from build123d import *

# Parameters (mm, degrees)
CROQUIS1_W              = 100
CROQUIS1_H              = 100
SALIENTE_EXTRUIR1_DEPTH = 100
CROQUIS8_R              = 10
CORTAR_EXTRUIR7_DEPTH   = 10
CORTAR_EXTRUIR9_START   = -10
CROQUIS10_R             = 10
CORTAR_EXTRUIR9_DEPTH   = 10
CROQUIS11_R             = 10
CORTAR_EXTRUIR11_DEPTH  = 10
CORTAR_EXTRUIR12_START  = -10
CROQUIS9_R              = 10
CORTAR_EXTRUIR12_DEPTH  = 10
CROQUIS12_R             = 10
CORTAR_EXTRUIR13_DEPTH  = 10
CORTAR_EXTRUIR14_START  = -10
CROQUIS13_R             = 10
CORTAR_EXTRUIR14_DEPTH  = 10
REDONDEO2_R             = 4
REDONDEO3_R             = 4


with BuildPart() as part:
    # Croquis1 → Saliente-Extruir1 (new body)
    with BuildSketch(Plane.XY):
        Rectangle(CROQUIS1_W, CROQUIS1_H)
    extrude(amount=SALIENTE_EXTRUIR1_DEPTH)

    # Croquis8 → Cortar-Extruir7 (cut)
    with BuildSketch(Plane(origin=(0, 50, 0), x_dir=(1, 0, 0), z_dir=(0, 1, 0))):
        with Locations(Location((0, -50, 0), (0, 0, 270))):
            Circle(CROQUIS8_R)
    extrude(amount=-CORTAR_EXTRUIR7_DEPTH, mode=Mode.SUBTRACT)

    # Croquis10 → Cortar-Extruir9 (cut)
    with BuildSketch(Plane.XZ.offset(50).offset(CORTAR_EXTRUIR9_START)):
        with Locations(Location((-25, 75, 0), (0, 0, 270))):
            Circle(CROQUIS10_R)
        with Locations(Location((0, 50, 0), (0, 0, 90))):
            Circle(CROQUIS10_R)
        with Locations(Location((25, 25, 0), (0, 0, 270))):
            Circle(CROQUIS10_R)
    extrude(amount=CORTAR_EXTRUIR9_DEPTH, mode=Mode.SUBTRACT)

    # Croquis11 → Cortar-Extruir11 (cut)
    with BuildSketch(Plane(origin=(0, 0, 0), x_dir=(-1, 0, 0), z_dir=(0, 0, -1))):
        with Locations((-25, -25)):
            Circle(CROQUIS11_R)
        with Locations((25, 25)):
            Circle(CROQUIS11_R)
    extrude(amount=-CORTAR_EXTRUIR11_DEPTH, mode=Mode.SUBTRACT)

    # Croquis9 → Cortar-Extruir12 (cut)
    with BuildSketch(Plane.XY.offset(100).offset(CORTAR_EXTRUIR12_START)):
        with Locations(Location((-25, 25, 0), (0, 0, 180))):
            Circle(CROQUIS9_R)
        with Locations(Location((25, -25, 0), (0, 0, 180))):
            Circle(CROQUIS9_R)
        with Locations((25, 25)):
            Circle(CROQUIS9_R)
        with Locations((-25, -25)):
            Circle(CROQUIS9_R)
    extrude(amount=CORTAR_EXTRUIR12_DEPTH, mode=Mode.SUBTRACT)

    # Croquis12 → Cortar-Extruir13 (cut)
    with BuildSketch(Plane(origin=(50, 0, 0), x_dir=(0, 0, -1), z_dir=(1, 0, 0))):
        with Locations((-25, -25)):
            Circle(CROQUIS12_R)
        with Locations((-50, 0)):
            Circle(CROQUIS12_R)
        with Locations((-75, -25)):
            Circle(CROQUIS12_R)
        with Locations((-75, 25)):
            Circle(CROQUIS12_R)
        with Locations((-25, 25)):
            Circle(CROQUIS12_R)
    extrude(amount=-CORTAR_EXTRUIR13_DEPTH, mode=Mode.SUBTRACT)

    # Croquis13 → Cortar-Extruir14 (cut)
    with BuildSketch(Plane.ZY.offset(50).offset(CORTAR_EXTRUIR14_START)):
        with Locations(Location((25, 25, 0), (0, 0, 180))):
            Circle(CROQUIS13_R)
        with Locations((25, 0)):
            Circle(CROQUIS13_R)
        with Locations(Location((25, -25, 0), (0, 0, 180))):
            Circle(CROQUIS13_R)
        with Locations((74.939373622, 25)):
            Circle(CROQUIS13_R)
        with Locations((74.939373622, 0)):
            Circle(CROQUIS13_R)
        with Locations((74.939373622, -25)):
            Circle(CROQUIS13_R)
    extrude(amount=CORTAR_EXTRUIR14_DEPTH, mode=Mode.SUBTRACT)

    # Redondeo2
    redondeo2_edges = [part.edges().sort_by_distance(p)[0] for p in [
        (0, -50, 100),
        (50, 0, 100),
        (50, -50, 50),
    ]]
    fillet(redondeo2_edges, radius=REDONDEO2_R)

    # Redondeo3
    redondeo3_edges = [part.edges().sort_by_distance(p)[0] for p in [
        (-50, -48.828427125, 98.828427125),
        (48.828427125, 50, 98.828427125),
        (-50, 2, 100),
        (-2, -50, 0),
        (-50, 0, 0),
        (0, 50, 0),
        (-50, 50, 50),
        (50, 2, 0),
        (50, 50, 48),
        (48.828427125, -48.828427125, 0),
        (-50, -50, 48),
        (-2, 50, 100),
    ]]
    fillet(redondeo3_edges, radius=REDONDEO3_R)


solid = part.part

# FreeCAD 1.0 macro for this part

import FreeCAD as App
import Part
import Sketcher

V = App.Vector


def edges_at(feature, points):
    """Names of the edges that pass closest to the given points."""
    edges = feature.Shape.Edges
    near = lambda p: min(range(len(edges)), key=lambda i: edges[i].distToShape(Part.Vertex(*p))[0])
    return sorted({f"Edge{near(p) + 1}" for p in points})


def add_polygon(sketch, points):
    """Adds a closed chain of lines whose ends are joined by coincident constraints."""
    first, n = sketch.GeometryCount, len(points)
    for a, b in zip(points, points[1:] + points[:1]):
        sketch.addGeometry(Part.LineSegment(App.Vector(*a, 0), App.Vector(*b, 0)), False)
    for i in range(n):
        sketch.addConstraint(Sketcher.Constraint("Coincident", first + i, 2, first + (i + 1) % n, 1))

doc = App.newDocument("Part")
body = doc.addObject("PartDesign::Body", "Body")

sketch1 = body.newObject("Sketcher::SketchObject", "Sketch")
sketch1.AttachmentSupport = (doc.getObject("XY_Plane"), [""])
sketch1.MapMode = "FlatFace"
add_polygon(sketch1, [(-50, 50), (-50, -50), (50, -50), (50, 50)])
sketch1.addConstraint([
    Sketcher.Constraint("Vertical", 0),
    Sketcher.Constraint("Horizontal", 1),
    Sketcher.Constraint("Vertical", 2),
    Sketcher.Constraint("Horizontal", 3),
    Sketcher.Constraint("Symmetric", 0, 2, 2, 2, -1, 1),
    Sketcher.Constraint("Equal", 3, 0),
    Sketcher.Constraint("DistanceX", 1, 1, 1, 2, 100.0),
])
pad1 = body.newObject("PartDesign::Pad", "Pad")
pad1.Profile = sketch1
pad1.Length = 100

sketch2 = body.newObject("Sketcher::SketchObject", "Sketch001")
sketch2.AttachmentSupport = (doc.getObject("XZ_Plane"), [""])
sketch2.MapMode = "FlatFace"
sketch2.AttachmentOffset = App.Placement(V(0, 0, -50), App.Rotation())
sketch2.addGeometry(Part.Circle(V(0, 50, 0), V(0, 0, 1), 10), False)
sketch2.addConstraint([
    Sketcher.Constraint("PointOnObject", 0, 3, -2),
    Sketcher.Constraint("Diameter", 0, 20.0),
    Sketcher.Constraint("DistanceY", -1, 1, 0, 3, 50.0),
])
pocket1 = body.newObject("PartDesign::Pocket", "Pocket")
pocket1.Profile = sketch2
pocket1.Length = 10
pocket1.Reversed = True

sketch3 = body.newObject("Sketcher::SketchObject", "Sketch002")
sketch3.AttachmentSupport = (doc.getObject("XZ_Plane"), [""])
sketch3.MapMode = "FlatFace"
sketch3.AttachmentOffset = App.Placement(V(0, 0, 40), App.Rotation())
sketch3.addGeometry([
    Part.Circle(V(-25, 75, 0), V(0, 0, 1), 10),
    Part.Circle(V(0, 50, 0), V(0, 0, 1), 10),
    Part.Circle(V(25, 25, 0), V(0, 0, 1), 10),
], False)
sketch3.addConstraint([
    Sketcher.Constraint("Equal", 0, 1),
    Sketcher.Constraint("Equal", 1, 2),
    Sketcher.Constraint("PointOnObject", 1, 3, -2),
    Sketcher.Constraint("Diameter", 0, 20.0),
    Sketcher.Constraint("DistanceX", 0, 3, -1, 1, 25.0),
    Sketcher.Constraint("DistanceY", -1, 1, 0, 3, 75.0),
    Sketcher.Constraint("DistanceY", -1, 1, 1, 3, 50.0),
    Sketcher.Constraint("DistanceX", -1, 1, 2, 3, 25.0),
    Sketcher.Constraint("DistanceY", -1, 1, 2, 3, 25.0),
])
pocket2 = body.newObject("PartDesign::Pocket", "Pocket001")
pocket2.Profile = sketch3
pocket2.Length = 10
pocket2.Reversed = True

sketch4 = body.newObject("Sketcher::SketchObject", "Sketch003")
sketch4.AttachmentSupport = (doc.getObject("XY_Plane"), [""])
sketch4.MapMode = "FlatFace"
sketch4.addGeometry([
    Part.Circle(V(25, -25, 0), V(0, 0, 1), 10),
    Part.Circle(V(-25, 25, 0), V(0, 0, 1), 10),
], False)
sketch4.addConstraint([
    Sketcher.Constraint("Equal", 0, 1),
    Sketcher.Constraint("Symmetric", 0, 3, 1, 3, -1, 1),
    Sketcher.Constraint("Diameter", 0, 20.0),
    Sketcher.Constraint("DistanceX", -1, 1, 0, 3, 25.0),
    Sketcher.Constraint("DistanceY", 0, 3, -1, 1, 25.0),
])
pocket3 = body.newObject("PartDesign::Pocket", "Pocket002")
pocket3.Profile = sketch4
pocket3.Length = 10
pocket3.Reversed = True

sketch5 = body.newObject("Sketcher::SketchObject", "Sketch004")
sketch5.AttachmentSupport = (doc.getObject("XY_Plane"), [""])
sketch5.MapMode = "FlatFace"
sketch5.AttachmentOffset = App.Placement(V(0, 0, 90), App.Rotation())
sketch5.addGeometry([
    Part.Circle(V(-25, 25, 0), V(0, 0, 1), 10),
    Part.Circle(V(25, -25, 0), V(0, 0, 1), 10),
    Part.Circle(V(25, 25, 0), V(0, 0, 1), 10),
    Part.Circle(V(-25, -25, 0), V(0, 0, 1), 10),
], False)
sketch5.addConstraint([
    Sketcher.Constraint("Equal", 0, 1),
    Sketcher.Constraint("Equal", 1, 2),
    Sketcher.Constraint("Equal", 2, 3),
    Sketcher.Constraint("Symmetric", 0, 3, 1, 3, -1, 1),
    Sketcher.Constraint("Symmetric", 2, 3, 3, 3, -1, 1),
    Sketcher.Constraint("Symmetric", 0, 3, 2, 3, -2),
    Sketcher.Constraint("Diameter", 0, 20.0),
    Sketcher.Constraint("DistanceX", 0, 3, -1, 1, 25.0),
    Sketcher.Constraint("DistanceY", -1, 1, 0, 3, 25.0),
])
pocket4 = body.newObject("PartDesign::Pocket", "Pocket003")
pocket4.Profile = sketch5
pocket4.Length = 10
pocket4.Reversed = True

sketch6 = body.newObject("Sketcher::SketchObject", "Sketch005")
sketch6.AttachmentSupport = (doc.getObject("YZ_Plane"), [""])
sketch6.MapMode = "FlatFace"
sketch6.AttachmentOffset = App.Placement(V(0, 0, 50), App.Rotation())
sketch6.addGeometry([
    Part.Circle(V(-25, 25, 0), V(0, 0, 1), 10),
    Part.Circle(V(0, 50, 0), V(0, 0, 1), 10),
    Part.Circle(V(-25, 75, 0), V(0, 0, 1), 10),
    Part.Circle(V(25, 75, 0), V(0, 0, 1), 10),
    Part.Circle(V(25, 25, 0), V(0, 0, 1), 10),
], False)
sketch6.addConstraint([
    Sketcher.Constraint("Equal", 0, 1),
    Sketcher.Constraint("Equal", 1, 2),
    Sketcher.Constraint("Equal", 2, 3),
    Sketcher.Constraint("Equal", 3, 4),
    Sketcher.Constraint("Symmetric", 2, 3, 3, 3, -2),
    Sketcher.Constraint("Symmetric", 0, 3, 4, 3, -2),
    Sketcher.Constraint("PointOnObject", 1, 3, -2),
    Sketcher.Constraint("Vertical", 0, 3, 2, 3),
    Sketcher.Constraint("Diameter", 0, 20.0),
    Sketcher.Constraint("DistanceX", 0, 3, -1, 1, 25.0),
    Sketcher.Constraint("DistanceY", -1, 1, 0, 3, 25.0),
    Sketcher.Constraint("DistanceY", -1, 1, 1, 3, 50.0),
    Sketcher.Constraint("DistanceY", -1, 1, 2, 3, 75.0),
])
pocket5 = body.newObject("PartDesign::Pocket", "Pocket004")
pocket5.Profile = sketch6
pocket5.Length = 10

sketch7 = body.newObject("Sketcher::SketchObject", "Sketch006")
sketch7.AttachmentSupport = (doc.getObject("YZ_Plane"), [""])
sketch7.MapMode = "FlatFace"
sketch7.AttachmentOffset = App.Placement(V(0, 0, -40), App.Rotation())
sketch7.addGeometry([
    Part.Circle(V(25, 25, 0), V(0, 0, 1), 10),
    Part.Circle(V(0, 25, 0), V(0, 0, 1), 10),
    Part.Circle(V(-25, 25, 0), V(0, 0, 1), 10),
    Part.Circle(V(25, 74.939374, 0), V(0, 0, 1), 10),
    Part.Circle(V(0, 74.939374, 0), V(0, 0, 1), 10),
    Part.Circle(V(-25, 74.939374, 0), V(0, 0, 1), 10),
], False)
sketch7.addConstraint([
    Sketcher.Constraint("Equal", 0, 1),
    Sketcher.Constraint("Equal", 1, 2),
    Sketcher.Constraint("Equal", 2, 3),
    Sketcher.Constraint("Equal", 3, 4),
    Sketcher.Constraint("Equal", 4, 5),
    Sketcher.Constraint("Symmetric", 0, 3, 2, 3, -2),
    Sketcher.Constraint("Symmetric", 3, 3, 5, 3, -2),
    Sketcher.Constraint("PointOnObject", 1, 3, -2),
    Sketcher.Constraint("PointOnObject", 4, 3, -2),
    Sketcher.Constraint("Horizontal", 0, 3, 1, 3),
    Sketcher.Constraint("Horizontal", 3, 3, 4, 3),
    Sketcher.Constraint("Vertical", 0, 3, 3, 3),
    Sketcher.Constraint("Diameter", 0, 20.0),
    Sketcher.Constraint("DistanceX", -1, 1, 0, 3, 25.0),
    Sketcher.Constraint("DistanceY", -1, 1, 0, 3, 25.0),
    Sketcher.Constraint("DistanceY", -1, 1, 3, 3, 74.939374),
])
pocket6 = body.newObject("PartDesign::Pocket", "Pocket005")
pocket6.Profile = sketch7
pocket6.Length = 10
doc.recompute()

fillet = body.newObject("PartDesign::Fillet", "Fillet")
fillet.Base = (pocket6, edges_at(pocket6, [(0, -50, 100), (50, 0, 100), (50, -50, 50)]))
fillet.Radius = 4
doc.recompute()

fillet2 = body.newObject("PartDesign::Fillet", "Fillet001")
fillet2.Base = (fillet, edges_at(fillet, [
    (-50, -48.828, 98.828),
    (48.828, 50, 98.828),
    (-50, 2, 100),
    (-2, -50, 0),
    (-50, 0, 0),
    (0, 50, 0),
    (-50, 50, 50),
    (50, 2, 0),
    (50, 50, 48),
    (48.828, -48.828, 0),
    (-50, -50, 48),
    (-2, 50, 100),
]))
fillet2.Radius = 4

doc.recompute()
